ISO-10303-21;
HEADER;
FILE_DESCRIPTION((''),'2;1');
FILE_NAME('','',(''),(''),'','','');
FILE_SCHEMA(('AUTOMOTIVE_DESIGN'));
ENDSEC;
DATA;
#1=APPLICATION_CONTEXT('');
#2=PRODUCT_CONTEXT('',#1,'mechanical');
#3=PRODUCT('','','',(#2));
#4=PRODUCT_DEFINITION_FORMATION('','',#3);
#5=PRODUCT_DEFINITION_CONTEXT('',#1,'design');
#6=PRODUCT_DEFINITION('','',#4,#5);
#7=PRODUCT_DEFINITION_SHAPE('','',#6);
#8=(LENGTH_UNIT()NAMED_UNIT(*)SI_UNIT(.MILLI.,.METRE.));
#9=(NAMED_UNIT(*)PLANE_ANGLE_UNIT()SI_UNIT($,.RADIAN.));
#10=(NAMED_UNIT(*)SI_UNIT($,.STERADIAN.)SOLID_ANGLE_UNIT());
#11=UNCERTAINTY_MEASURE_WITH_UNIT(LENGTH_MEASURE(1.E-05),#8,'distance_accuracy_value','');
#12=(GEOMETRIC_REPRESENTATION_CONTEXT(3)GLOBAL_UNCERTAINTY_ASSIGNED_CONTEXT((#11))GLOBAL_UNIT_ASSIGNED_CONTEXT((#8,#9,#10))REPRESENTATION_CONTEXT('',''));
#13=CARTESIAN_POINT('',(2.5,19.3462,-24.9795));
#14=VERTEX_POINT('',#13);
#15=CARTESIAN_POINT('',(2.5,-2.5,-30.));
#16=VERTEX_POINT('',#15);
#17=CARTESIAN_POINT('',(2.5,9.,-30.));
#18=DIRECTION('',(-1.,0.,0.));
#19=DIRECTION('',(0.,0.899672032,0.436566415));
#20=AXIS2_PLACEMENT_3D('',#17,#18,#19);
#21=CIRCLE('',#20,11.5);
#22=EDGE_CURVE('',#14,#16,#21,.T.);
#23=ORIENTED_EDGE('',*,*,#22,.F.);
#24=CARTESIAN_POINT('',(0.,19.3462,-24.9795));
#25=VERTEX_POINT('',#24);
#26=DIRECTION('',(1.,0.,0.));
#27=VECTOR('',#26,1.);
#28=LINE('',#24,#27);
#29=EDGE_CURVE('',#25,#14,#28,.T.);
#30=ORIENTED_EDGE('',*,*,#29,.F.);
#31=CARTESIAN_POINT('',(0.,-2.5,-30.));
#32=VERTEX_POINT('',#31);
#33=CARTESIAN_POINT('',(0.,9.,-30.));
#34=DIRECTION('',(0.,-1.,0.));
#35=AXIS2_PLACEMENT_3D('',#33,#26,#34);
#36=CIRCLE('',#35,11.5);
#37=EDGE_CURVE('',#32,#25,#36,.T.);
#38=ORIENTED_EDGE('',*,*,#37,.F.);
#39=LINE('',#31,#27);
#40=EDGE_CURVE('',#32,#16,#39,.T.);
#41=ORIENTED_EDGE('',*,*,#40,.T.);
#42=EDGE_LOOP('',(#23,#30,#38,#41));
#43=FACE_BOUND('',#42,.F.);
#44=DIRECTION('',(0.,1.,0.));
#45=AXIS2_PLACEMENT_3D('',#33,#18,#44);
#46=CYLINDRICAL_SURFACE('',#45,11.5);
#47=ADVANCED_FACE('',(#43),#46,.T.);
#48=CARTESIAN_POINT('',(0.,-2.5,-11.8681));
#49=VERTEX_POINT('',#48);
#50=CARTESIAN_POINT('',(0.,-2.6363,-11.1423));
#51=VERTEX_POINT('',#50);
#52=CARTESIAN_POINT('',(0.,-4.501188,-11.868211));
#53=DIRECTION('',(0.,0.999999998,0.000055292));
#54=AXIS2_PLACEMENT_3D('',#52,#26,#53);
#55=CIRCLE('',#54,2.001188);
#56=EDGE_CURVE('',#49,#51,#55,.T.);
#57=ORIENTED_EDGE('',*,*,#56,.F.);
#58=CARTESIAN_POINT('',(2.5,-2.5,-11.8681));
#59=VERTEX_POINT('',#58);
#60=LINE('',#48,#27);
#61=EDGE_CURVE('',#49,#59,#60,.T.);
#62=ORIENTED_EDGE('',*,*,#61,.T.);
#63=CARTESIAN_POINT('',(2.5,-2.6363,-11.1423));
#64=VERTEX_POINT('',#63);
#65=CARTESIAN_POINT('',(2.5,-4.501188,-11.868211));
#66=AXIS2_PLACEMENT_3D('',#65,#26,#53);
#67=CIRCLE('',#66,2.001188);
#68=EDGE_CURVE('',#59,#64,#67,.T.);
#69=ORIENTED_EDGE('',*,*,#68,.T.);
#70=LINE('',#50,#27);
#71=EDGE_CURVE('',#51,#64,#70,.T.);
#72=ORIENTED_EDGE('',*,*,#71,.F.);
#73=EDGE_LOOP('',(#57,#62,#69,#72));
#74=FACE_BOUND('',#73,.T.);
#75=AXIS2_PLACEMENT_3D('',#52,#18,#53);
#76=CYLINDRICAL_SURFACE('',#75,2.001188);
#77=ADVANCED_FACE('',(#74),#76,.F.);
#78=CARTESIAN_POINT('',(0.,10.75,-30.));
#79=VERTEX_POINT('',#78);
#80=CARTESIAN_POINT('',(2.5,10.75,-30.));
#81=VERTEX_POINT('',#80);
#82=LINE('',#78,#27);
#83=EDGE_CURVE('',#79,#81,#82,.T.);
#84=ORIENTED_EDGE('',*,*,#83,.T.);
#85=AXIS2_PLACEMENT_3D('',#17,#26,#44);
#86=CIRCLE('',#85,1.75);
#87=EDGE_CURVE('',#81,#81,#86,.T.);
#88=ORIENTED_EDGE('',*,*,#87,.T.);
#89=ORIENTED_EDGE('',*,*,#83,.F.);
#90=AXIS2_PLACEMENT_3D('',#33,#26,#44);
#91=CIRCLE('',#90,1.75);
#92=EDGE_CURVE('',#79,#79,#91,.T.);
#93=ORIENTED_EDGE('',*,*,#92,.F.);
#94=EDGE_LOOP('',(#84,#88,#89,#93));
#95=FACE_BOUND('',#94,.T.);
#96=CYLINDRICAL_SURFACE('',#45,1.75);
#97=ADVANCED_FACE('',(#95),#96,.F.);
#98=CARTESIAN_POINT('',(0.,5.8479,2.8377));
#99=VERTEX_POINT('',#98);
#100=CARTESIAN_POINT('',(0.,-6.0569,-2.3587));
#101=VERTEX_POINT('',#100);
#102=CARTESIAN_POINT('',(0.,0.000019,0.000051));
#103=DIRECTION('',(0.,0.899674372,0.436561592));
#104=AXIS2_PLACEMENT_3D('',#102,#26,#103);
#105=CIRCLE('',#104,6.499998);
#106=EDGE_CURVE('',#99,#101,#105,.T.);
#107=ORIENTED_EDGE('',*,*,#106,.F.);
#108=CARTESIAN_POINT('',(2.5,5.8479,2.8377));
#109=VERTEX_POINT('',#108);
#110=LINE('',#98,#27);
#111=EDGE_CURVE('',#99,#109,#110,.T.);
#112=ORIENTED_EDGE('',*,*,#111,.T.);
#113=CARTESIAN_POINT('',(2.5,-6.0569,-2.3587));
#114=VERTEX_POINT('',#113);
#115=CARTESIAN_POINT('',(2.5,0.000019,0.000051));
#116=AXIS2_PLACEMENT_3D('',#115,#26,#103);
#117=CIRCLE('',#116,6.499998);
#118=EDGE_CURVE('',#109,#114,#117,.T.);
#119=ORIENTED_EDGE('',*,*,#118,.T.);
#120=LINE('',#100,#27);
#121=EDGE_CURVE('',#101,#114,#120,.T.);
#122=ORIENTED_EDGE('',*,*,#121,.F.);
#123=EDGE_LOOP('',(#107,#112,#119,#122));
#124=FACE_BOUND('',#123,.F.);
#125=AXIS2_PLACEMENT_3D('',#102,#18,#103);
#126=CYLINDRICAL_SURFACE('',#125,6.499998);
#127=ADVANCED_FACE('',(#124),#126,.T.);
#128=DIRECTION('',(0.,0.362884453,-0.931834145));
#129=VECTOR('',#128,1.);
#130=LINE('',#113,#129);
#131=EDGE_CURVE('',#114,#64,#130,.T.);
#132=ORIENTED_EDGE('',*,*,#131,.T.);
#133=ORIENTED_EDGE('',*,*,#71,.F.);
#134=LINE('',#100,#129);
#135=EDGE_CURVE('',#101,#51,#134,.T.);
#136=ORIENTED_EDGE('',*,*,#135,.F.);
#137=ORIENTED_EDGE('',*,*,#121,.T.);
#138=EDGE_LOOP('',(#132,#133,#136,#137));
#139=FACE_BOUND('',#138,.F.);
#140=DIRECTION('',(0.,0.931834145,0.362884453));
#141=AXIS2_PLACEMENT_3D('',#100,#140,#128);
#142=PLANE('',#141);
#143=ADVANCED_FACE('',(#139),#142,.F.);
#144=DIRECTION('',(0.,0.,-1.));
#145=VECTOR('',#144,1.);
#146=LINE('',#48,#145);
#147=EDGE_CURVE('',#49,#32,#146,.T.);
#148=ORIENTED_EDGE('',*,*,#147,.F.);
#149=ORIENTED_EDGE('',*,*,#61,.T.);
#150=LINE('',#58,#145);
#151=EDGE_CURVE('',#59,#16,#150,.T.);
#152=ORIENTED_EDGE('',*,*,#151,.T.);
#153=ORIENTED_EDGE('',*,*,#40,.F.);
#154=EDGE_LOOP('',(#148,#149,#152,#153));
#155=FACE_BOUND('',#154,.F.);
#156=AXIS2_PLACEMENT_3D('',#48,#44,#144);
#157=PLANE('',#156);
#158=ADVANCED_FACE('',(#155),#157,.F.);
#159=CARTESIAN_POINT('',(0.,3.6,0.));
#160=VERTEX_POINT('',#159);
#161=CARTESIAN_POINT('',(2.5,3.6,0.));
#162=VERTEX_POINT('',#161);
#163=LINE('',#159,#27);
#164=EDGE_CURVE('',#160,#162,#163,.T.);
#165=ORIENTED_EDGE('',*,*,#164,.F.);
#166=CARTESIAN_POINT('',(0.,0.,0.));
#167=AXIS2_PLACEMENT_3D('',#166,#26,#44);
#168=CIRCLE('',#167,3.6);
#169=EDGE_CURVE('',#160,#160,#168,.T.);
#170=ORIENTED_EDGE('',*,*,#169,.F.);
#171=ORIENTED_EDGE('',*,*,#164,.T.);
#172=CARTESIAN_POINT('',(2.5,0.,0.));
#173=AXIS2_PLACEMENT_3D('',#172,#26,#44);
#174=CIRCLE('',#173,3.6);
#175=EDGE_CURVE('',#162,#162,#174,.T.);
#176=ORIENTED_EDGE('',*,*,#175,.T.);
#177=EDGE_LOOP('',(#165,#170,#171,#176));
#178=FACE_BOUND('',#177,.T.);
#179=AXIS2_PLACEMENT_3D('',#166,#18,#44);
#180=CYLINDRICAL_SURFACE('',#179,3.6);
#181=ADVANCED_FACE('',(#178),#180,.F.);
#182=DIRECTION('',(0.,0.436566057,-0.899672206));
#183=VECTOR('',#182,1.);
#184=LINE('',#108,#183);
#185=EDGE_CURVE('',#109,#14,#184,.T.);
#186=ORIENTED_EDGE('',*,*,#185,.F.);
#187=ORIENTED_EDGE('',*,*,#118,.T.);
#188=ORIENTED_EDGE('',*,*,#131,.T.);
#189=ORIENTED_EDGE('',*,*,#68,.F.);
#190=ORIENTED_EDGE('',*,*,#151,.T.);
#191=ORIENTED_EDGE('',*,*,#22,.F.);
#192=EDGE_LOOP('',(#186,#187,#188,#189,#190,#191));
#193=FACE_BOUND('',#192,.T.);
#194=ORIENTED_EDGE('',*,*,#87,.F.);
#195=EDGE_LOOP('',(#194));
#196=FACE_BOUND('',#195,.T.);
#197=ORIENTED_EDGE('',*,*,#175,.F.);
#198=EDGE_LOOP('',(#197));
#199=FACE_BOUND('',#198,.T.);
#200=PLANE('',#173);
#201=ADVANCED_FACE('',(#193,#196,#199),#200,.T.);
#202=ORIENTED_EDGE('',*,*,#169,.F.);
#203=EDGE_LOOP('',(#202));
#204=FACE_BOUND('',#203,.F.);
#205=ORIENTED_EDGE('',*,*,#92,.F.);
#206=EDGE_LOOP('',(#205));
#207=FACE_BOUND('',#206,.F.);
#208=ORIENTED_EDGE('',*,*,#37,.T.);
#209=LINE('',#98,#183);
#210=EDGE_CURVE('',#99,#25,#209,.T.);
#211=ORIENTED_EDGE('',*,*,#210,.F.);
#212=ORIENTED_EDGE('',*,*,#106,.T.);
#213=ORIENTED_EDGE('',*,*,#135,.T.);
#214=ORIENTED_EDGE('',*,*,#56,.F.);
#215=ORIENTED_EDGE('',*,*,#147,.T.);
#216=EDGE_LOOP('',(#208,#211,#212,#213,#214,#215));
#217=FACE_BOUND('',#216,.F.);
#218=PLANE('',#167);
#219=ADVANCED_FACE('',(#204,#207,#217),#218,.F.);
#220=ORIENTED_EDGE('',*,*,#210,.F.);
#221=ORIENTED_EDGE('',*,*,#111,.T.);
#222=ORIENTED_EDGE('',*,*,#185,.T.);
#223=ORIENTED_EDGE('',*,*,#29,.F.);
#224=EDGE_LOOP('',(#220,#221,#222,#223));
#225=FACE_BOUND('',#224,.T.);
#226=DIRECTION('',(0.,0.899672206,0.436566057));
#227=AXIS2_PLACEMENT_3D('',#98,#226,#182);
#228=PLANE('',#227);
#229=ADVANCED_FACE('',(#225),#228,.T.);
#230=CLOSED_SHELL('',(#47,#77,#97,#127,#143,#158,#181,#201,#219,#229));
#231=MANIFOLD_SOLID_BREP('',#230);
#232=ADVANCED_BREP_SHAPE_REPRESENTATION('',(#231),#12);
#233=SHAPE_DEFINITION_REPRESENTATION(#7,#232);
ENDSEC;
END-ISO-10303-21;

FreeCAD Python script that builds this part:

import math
import FreeCAD as App
import Part
import Sketcher

V = App.Vector
Q = App.Units.Quantity

doc = App.newDocument("Part")
body = doc.addObject("PartDesign::Body", "Body")

sketch1 = doc.addObject("Sketcher::SketchObject", "Sketch")
body.addObject(sketch1)
sketch1.AttachmentSupport = (doc.YZ_Plane, [""])
sketch1.MapMode = "FlatFace"
sketch1.addGeometry([
    Part.LineSegment(V(19.3462, -24.9795, 0), V(5.8479, 2.8377, 0)),
    Part.ArcOfCircle(Part.Circle(V(0, 0, 0), V(0, 0, 1), 6.500037), math.radians(25.885032), math.radians(201.277114)),
    Part.LineSegment(V(-6.0569, -2.3587, 0), V(-2.6363, -11.1423, 0)),
    Part.ArcOfCircle(Part.Circle(V(-4.501188, -11.868211, 0), V(0, 0, 1), 2.001188), math.radians(0.003168), math.radians(21.268552)),
    Part.LineSegment(V(-2.5, -11.8681, 0), V(-2.5, -30, 0)),
    Part.ArcOfCircle(Part.Circle(V(9, -30, 0), V(0, 0, 1), 11.5), math.radians(180), math.radians(385.885009)),
    Part.Circle(V(0, 0, 0), V(0, 0, 1), 3.6),
    Part.Circle(V(9, -30, 0), V(0, 0, 1), 1.75),
], False)
sketch1.addConstraint([
    Sketcher.Constraint("Tangent", 0, 2, 1, 1),
    Sketcher.Constraint("Tangent", 1, 2, 2, 1),
    Sketcher.Constraint("Tangent", 2, 2, 3, 2),
    Sketcher.Constraint("Tangent", 3, 1, 4, 1),
    Sketcher.Constraint("Tangent", 4, 2, 5, 1),
    Sketcher.Constraint("Tangent", 5, 2, 0, 1),
    Sketcher.Constraint("Vertical", 4),
    Sketcher.Constraint("Coincident", 1, 3, -1, 1),
    Sketcher.Constraint("Coincident", 6, 3, -1, 1),
    Sketcher.Constraint("Coincident", 7, 3, 5, 3),
    Sketcher.Constraint("Diameter", 6, Q("7.2 mm")),
    Sketcher.Constraint("Diameter", 7, Q("3.5 mm")),
    Sketcher.Constraint("Radius", 1, Q("6.5 mm")),
    Sketcher.Constraint("Radius", 5, Q("11.5 mm")),
    Sketcher.Constraint("DistanceX", -1, 1, 5, 3, Q("9 mm")),
    Sketcher.Constraint("DistanceY", 5, 3, -1, 1, Q("30 mm")),
    Sketcher.Constraint("Radius", 3, Q("2.0012 mm")),
    Sketcher.Constraint("DistanceY", 4, 2, 4, 1, Q("18.132 mm")),
])
pad1 = doc.addObject("PartDesign::Pad", "Pad")
body.addObject(pad1)
pad1.Profile = sketch1
pad1.Length = 2.5

doc.recompute()
